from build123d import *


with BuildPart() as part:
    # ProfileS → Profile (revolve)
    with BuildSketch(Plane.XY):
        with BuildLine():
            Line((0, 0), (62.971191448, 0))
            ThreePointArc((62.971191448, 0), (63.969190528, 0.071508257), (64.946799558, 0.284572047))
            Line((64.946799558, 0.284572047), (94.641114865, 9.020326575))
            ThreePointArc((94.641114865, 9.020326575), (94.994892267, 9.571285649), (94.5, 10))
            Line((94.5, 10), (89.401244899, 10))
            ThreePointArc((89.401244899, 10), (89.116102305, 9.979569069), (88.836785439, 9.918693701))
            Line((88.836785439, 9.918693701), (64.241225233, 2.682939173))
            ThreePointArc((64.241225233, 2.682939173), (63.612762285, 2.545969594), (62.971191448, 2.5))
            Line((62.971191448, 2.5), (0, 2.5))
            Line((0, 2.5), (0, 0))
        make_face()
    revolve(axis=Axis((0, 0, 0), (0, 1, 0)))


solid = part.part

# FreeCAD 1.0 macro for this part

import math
import FreeCAD as App
import Part
import Sketcher
Q = App.Units.Quantity

doc = App.newDocument("Part")
body = doc.addObject("PartDesign::Body", "Body")

# Sketch on XY plane
sketch1 = doc.addObject("Sketcher::SketchObject", "Sketch")
body.addObject(sketch1)
sketch1.AttachmentSupport = (doc.XY_Plane, [""])
sketch1.MapMode = "FlatFace"
sketch1.addGeometry(Part.LineSegment(App.Vector(0, 0, 0), App.Vector(63, 0, 0)), False)
sketch1.addGeometry(Part.ArcOfCircle(Part.Circle(App.Vector(63, 7, 0), App.Vector(0, 0, 1), 7), math.radians(-90), math.radians(-73.61)), False)
sketch1.addGeometry(Part.LineSegment(App.Vector(64.9, 0.3, 0), App.Vector(94.6, 9, 0)), False)
sketch1.addGeometry(Part.ArcOfCircle(Part.Circle(App.Vector(94.5, 9.5, 0), App.Vector(0, 0, 1), 0.5), math.radians(-74), math.radians(90)), False)
sketch1.addGeometry(Part.LineSegment(App.Vector(94.5, 10, 0), App.Vector(89.4, 10, 0)), False)
sketch1.addGeometry(Part.ArcOfCircle(Part.Circle(App.Vector(89.4, 8, 0), App.Vector(0, 0, 1), 2), math.radians(90), math.radians(106.39)), False)
sketch1.addGeometry(Part.LineSegment(App.Vector(88.8, 9.9, 0), App.Vector(64.2, 2.7, 0)), False)
sketch1.addGeometry(Part.ArcOfCircle(Part.Circle(App.Vector(63, 7, 0), App.Vector(0, 0, 1), 4.5), math.radians(-90), math.radians(-73.61)), False)
sketch1.addGeometry(Part.LineSegment(App.Vector(63, 2.5, 0), App.Vector(0, 2.5, 0)), False)
sketch1.addGeometry(Part.LineSegment(App.Vector(0, 2.5, 0), App.Vector(0, 0, 0)), False)
sketch1.addConstraint(Sketcher.Constraint("Tangent", 0, 2, 1, 1))
sketch1.addConstraint(Sketcher.Constraint("Tangent", 1, 2, 2, 1))
sketch1.addConstraint(Sketcher.Constraint("Tangent", 2, 2, 3, 1))
sketch1.addConstraint(Sketcher.Constraint("Tangent", 3, 2, 4, 1))
sketch1.addConstraint(Sketcher.Constraint("Tangent", 4, 2, 5, 1))
sketch1.addConstraint(Sketcher.Constraint("Tangent", 5, 2, 6, 1))
sketch1.addConstraint(Sketcher.Constraint("Tangent", 6, 2, 7, 2))
sketch1.addConstraint(Sketcher.Constraint("Tangent", 7, 1, 8, 1))
sketch1.addConstraint(Sketcher.Constraint("Coincident", 8, 2, 9, 1))
sketch1.addConstraint(Sketcher.Constraint("Coincident", 9, 2, 0, 1))
sketch1.addConstraint(Sketcher.Constraint("Horizontal", 0))
sketch1.addConstraint(Sketcher.Constraint("Horizontal", 4))
sketch1.addConstraint(Sketcher.Constraint("Horizontal", 8))
sketch1.addConstraint(Sketcher.Constraint("Vertical", 9))
sketch1.addConstraint(Sketcher.Constraint("Coincident", 9, 2, -1, 1))
sketch1.addConstraint(Sketcher.Constraint("Coincident", 7, 3, 1, 3))
sketch1.addConstraint(Sketcher.Constraint("Parallel", 2, 6))
sketch1.addConstraint(Sketcher.Constraint("Radius", 1, Q("7 mm")))
sketch1.addConstraint(Sketcher.Constraint("Radius", 5, Q("2 mm")))
sketch1.addConstraint(Sketcher.Constraint("Radius", 3, Q("0.5 mm")))
sketch1.addConstraint(Sketcher.Constraint("Radius", 7, Q("4.5 mm")))
sketch1.addConstraint(Sketcher.Constraint("DistanceY", -1, 1, 5, 3, Q("8 mm")))
sketch1.addConstraint(Sketcher.Constraint("DistanceX", -1, 1, 3, 3, Q("94.5 mm")))
sketch1.addConstraint(Sketcher.Constraint("DistanceX", 0, 1, 0, 2, Q("62.971191 mm")))
revolution = doc.addObject("PartDesign::Revolution", "Revolution")
body.addObject(revolution)
revolution.Profile = sketch1
revolution.ReferenceAxis = (sketch1, ["V_Axis"])
revolution.Angle = 360

doc.recompute()
